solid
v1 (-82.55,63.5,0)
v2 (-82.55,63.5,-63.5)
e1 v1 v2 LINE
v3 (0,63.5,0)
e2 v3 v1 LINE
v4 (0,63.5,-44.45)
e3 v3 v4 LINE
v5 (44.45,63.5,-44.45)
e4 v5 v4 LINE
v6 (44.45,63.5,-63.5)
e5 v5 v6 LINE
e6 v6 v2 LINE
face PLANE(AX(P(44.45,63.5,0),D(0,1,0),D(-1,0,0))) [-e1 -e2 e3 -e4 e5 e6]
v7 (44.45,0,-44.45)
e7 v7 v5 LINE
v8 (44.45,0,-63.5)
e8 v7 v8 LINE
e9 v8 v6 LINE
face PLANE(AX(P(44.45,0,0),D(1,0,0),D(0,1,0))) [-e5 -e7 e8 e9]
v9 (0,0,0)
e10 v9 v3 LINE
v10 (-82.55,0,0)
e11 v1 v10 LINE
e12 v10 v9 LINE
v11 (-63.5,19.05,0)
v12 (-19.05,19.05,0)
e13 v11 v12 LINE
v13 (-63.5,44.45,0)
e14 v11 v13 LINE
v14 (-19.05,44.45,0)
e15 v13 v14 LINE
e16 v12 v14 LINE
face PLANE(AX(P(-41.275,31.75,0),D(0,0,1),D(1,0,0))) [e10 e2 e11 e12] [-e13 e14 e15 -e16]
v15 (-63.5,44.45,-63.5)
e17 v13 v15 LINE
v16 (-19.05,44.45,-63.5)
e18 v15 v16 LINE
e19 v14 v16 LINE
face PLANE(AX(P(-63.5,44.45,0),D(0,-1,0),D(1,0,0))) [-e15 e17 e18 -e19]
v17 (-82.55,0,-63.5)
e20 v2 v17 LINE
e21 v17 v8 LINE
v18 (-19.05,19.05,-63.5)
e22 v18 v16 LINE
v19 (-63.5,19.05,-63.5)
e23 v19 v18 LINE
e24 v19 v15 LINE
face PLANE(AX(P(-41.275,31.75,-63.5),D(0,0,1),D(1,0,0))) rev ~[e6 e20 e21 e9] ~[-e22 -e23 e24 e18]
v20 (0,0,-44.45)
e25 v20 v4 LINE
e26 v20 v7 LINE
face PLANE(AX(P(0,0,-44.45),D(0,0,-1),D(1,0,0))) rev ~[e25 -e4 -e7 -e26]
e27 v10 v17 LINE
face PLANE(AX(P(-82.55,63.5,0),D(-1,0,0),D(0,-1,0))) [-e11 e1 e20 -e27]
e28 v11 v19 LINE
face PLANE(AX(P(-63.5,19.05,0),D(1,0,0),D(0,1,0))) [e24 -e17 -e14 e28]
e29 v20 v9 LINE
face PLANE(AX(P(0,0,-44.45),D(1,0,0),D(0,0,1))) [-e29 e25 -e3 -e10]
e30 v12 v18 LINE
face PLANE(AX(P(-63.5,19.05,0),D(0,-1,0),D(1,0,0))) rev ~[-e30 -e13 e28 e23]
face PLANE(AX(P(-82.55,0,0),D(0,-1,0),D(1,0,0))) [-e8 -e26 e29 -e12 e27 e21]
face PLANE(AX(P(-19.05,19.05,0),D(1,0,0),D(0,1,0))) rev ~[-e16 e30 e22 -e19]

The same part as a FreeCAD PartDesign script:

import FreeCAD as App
import Part
import Sketcher
Q = App.Units.Quantity


def add_polygon(sketch, points):
    """Adds a closed chain of lines whose ends are joined by coincident constraints."""
    first, n = sketch.GeometryCount, len(points)
    for a, b in zip(points, points[1:] + points[:1]):
        sketch.addGeometry(Part.LineSegment(App.Vector(*a, 0), App.Vector(*b, 0)), False)
    for i in range(n):
        sketch.addConstraint(Sketcher.Constraint("Coincident", first + i, 2, first + (i + 1) % n, 1))

doc = App.newDocument("Part")
body = doc.addObject("PartDesign::Body", "Body")

sketch1 = body.newObject("Sketcher::SketchObject", "Sketch")
sketch1.AttachmentSupport = (doc.getObject("XY_Plane"), [""])
sketch1.MapMode = "FlatFace"
add_polygon(sketch1, [(-82.55, 63.5), (-82.55, 0), (44.45, 0), (44.45, 63.5)])
add_polygon(sketch1, [(-19.05, 19.05), (-63.5, 19.05), (-63.5, 44.45), (-19.05, 44.45)])
sketch1.addConstraint([
    Sketcher.Constraint("Vertical", 0),
    Sketcher.Constraint("Horizontal", 1),
    Sketcher.Constraint("Vertical", 2),
    Sketcher.Constraint("Horizontal", 3),
    Sketcher.Constraint("Horizontal", 4),
    Sketcher.Constraint("Vertical", 5),
    Sketcher.Constraint("Horizontal", 6),
    Sketcher.Constraint("Vertical", 7),
    Sketcher.Constraint("PointOnObject", 0, 2, -1),
    Sketcher.Constraint("DistanceX", 1, 1, 1, 2, Q("5 in")),
    Sketcher.Constraint("DistanceY", 5, 1, 5, 2, Q("1 in")),
    Sketcher.Constraint("DistanceY", 0, 2, 0, 1, Q("2.5 in")),
    Sketcher.Constraint("DistanceX", 4, 2, 4, 1, Q("1.75 in")),
    Sketcher.Constraint("DistanceX", 4, 2, -1, 1, Q("2.5 in")),
    Sketcher.Constraint("DistanceX", 6, 2, 2, 2, Q("2.5 in")),
    Sketcher.Constraint("DistanceY", -1, 1, 4, 2, Q("0.75 in")),
])
pad1 = body.newObject("PartDesign::Pad", "Pad")
pad1.Profile = sketch1
pad1.Length = Q("2.5 in")
pad1.Reversed = True

sketch2 = body.newObject("Sketcher::SketchObject", "Sketch001")
sketch2.AttachmentSupport = (doc.getObject("XZ_Plane"), [""])
sketch2.MapMode = "FlatFace"
add_polygon(sketch2, [(0, 0), (0, -44.45), (44.45, -44.45), (44.45, 0)])
sketch2.addConstraint([
    Sketcher.Constraint("Vertical", 0),
    Sketcher.Constraint("Horizontal", 1),
    Sketcher.Constraint("Vertical", 2),
    Sketcher.Constraint("Horizontal", 3),
    Sketcher.Constraint("Coincident", 3, 2, -1, 1),
    Sketcher.Constraint("Equal", 3, 0),
    Sketcher.Constraint("DistanceX", 1, 1, 1, 2, Q("1.75 in")),
])
pocket1 = body.newObject("PartDesign::Pocket", "Pocket")
pocket1.Profile = sketch2
pocket1.Type = "ThroughAll"

doc.recompute()
